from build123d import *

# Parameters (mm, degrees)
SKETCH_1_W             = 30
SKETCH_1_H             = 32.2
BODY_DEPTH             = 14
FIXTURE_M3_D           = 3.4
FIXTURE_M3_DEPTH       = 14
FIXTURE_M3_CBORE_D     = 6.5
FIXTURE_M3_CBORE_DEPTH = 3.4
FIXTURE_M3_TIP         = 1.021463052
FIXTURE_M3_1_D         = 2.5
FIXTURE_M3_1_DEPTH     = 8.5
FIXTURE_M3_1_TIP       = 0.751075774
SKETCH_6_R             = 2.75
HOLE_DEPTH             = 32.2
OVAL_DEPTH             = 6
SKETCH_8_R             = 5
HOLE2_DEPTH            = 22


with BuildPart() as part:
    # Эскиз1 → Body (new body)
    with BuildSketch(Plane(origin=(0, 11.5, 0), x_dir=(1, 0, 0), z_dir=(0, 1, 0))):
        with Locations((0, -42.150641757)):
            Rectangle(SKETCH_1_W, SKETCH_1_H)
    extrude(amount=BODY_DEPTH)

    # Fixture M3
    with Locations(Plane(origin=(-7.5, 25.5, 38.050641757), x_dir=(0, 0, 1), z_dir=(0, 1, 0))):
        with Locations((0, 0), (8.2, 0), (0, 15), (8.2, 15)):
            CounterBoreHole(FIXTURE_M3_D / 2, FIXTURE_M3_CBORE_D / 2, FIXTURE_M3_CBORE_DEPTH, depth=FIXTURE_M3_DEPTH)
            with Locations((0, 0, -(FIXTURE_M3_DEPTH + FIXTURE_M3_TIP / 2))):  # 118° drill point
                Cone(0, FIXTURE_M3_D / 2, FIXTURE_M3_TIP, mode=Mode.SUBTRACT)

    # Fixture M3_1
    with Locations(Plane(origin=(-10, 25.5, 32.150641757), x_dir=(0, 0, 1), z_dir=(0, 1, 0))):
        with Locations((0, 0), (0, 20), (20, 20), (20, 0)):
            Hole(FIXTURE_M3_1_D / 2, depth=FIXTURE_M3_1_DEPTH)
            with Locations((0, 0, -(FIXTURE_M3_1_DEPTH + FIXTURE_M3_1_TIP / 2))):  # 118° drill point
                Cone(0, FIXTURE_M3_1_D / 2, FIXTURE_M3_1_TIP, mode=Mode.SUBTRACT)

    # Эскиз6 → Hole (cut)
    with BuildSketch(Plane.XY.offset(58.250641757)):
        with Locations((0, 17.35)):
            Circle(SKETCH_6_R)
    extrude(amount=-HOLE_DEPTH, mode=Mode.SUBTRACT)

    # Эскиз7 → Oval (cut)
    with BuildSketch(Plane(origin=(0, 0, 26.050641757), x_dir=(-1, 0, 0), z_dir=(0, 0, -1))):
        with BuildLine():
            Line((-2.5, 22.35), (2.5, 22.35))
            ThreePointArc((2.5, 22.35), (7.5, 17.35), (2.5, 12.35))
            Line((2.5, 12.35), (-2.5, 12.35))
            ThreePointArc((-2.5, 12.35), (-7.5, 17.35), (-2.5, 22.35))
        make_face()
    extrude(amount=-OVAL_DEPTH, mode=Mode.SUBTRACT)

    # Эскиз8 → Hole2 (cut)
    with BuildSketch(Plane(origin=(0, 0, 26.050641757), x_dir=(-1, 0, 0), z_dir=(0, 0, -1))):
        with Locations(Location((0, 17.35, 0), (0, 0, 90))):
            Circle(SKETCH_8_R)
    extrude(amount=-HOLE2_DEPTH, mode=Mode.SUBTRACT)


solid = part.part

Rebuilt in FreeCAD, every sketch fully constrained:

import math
import FreeCAD as App
import Part
import Sketcher
from FreeCAD import Vector
Q = App.Units.Quantity


def add_polygon(sketch, points):
    """Adds a closed chain of lines whose ends are joined by coincident constraints."""
    first, n = sketch.GeometryCount, len(points)
    for a, b in zip(points, points[1:] + points[:1]):
        sketch.addGeometry(Part.LineSegment(App.Vector(*a, 0), App.Vector(*b, 0)), False)
    for i in range(n):
        sketch.addConstraint(Sketcher.Constraint("Coincident", first + i, 2, first + (i + 1) % n, 1))

doc = App.newDocument("Part")
body = doc.addObject("PartDesign::Body", "Body")

# Sketch on XZ plane
sketch1 = body.newObject("Sketcher::SketchObject", "Sketch")
sketch1.AttachmentSupport = (doc.getObject("XZ_Plane"), [""])
sketch1.MapMode = "FlatFace"
sketch1.AttachmentOffset = App.Placement(Vector(0, 0, -11.5), App.Rotation())
add_polygon(sketch1, [(-15, 26.050642), (-15, 58.250642), (15, 58.250642), (15, 26.050642)])  # lines 0-3
sketch1.addConstraint([
    Sketcher.Constraint("Vertical", 0),
    Sketcher.Constraint("Horizontal", 1),
    Sketcher.Constraint("Vertical", 2),
    Sketcher.Constraint("Horizontal", 3),
    Sketcher.Constraint("DistanceX", 1, 1, 1, 2, Q("30 mm")),
    Sketcher.Constraint("DistanceY", 0, 1, 0, 2, Q("32.2 mm")),
    Sketcher.Constraint("DistanceX", 0, 2, -1, 1, Q("15 mm")),
    Sketcher.Constraint("DistanceY", -1, 1, 0, 2, Q("58.250642 mm")),
])
pad1 = body.newObject("PartDesign::Pad", "Pad")
pad1.Profile = sketch1
pad1.Length = 14
pad1.Reversed = True

# Sketch on XZ plane
sketch2 = body.newObject("Sketcher::SketchObject", "Sketch001")
sketch2.AttachmentSupport = (doc.getObject("XZ_Plane"), [""])
sketch2.MapMode = "FlatFace"
sketch2.AttachmentOffset = App.Placement(Vector(0, 0, -25.5), App.Rotation())
sketch2.addGeometry([
    Part.Circle(Vector(-7.5, 38.050642, 0), Vector(0, 0, 1), 1.7),
    Part.Circle(Vector(-7.5, 46.250642, 0), Vector(0, 0, 1), 1.7),
    Part.Circle(Vector(7.5, 38.050642, 0), Vector(0, 0, 1), 1.7),
    Part.Circle(Vector(7.5, 46.250642, 0), Vector(0, 0, 1), 1.7),
], False)
sketch2.addConstraint([
    Sketcher.Constraint("Equal", 0, 1),
    Sketcher.Constraint("Equal", 1, 2),
    Sketcher.Constraint("Equal", 2, 3),
    Sketcher.Constraint("Symmetric", 0, 3, 2, 3, -2),
    Sketcher.Constraint("Symmetric", 1, 3, 3, 3, -2),
    Sketcher.Constraint("Vertical", 0, 3, 1, 3),
    Sketcher.Constraint("Diameter", 0, Q("3.4 mm")),
    Sketcher.Constraint("DistanceX", 0, 3, 2, 3, Q("15 mm")),
    Sketcher.Constraint("DistanceY", 0, 3, 1, 3, Q("8.2 mm")),
    Sketcher.Constraint("DistanceY", -1, 1, 0, 3, Q("38.050642 mm")),
])
doc.recompute()
hole = body.newObject("PartDesign::Hole", "Hole")
hole.Profile = sketch2
hole.ThreadType = "None"
hole.Diameter = 3.4
hole.DepthType = "Dimension"
hole.Depth = 14
hole.DrillPoint = "Angled"
hole.DrillPointAngle = 118
hole.HoleCutType = "Counterbore"
hole.HoleCutDiameter = 6.5
hole.HoleCutDepth = 3.4
hole.Reversed = True

# Sketch on XZ plane
sketch3 = body.newObject("Sketcher::SketchObject", "Sketch002")
sketch3.AttachmentSupport = (doc.getObject("XZ_Plane"), [""])
sketch3.MapMode = "FlatFace"
sketch3.AttachmentOffset = App.Placement(Vector(0, 0, -25.5), App.Rotation())
sketch3.addGeometry([
    Part.Circle(Vector(-10, 32.150642, 0), Vector(0, 0, 1), 1.25),
    Part.Circle(Vector(10, 32.150642, 0), Vector(0, 0, 1), 1.25),
    Part.Circle(Vector(10, 52.150642, 0), Vector(0, 0, 1), 1.25),
    Part.Circle(Vector(-10, 52.150642, 0), Vector(0, 0, 1), 1.25),
], False)
sketch3.addConstraint([
    Sketcher.Constraint("Equal", 0, 1),
    Sketcher.Constraint("Equal", 1, 2),
    Sketcher.Constraint("Equal", 2, 3),
    Sketcher.Constraint("Symmetric", 0, 3, 1, 3, -2),
    Sketcher.Constraint("Symmetric", 2, 3, 3, 3, -2),
    Sketcher.Constraint("Vertical", 1, 3, 2, 3),
    Sketcher.Constraint("Diameter", 0, Q("2.5 mm")),
    Sketcher.Constraint("DistanceX", 0, 3, -1, 1, Q("10 mm")),
    Sketcher.Constraint("DistanceY", 1, 3, 2, 3, Q("20 mm")),
    Sketcher.Constraint("DistanceY", -1, 1, 0, 3, Q("32.150642 mm")),
])
doc.recompute()
hole2 = body.newObject("PartDesign::Hole", "Hole001")
hole2.Profile = sketch3
hole2.ThreadType = "None"
hole2.Diameter = 2.5
hole2.DepthType = "Dimension"
hole2.Depth = 8.5
hole2.DrillPoint = "Angled"
hole2.DrillPointAngle = 118
hole2.Reversed = True

# Sketch on XY plane
sketch4 = body.newObject("Sketcher::SketchObject", "Sketch003")
sketch4.AttachmentSupport = (doc.getObject("XY_Plane"), [""])
sketch4.MapMode = "FlatFace"
sketch4.AttachmentOffset = App.Placement(Vector(0, 0, 58.250642), App.Rotation())
sketch4.addGeometry(Part.Circle(Vector(0, 17.35, 0), Vector(0, 0, 1), 2.75), False)
sketch4.addConstraint([
    Sketcher.Constraint("PointOnObject", 0, 3, -2),
    Sketcher.Constraint("Diameter", 0, Q("5.5 mm")),
    Sketcher.Constraint("DistanceY", -1, 1, 0, 3, Q("17.35 mm")),
])
pocket1 = body.newObject("PartDesign::Pocket", "Pocket")
pocket1.Profile = sketch4
pocket1.Length = 32.2

# Sketch on XY plane
sketch5 = body.newObject("Sketcher::SketchObject", "Sketch004")
sketch5.AttachmentSupport = (doc.getObject("XY_Plane"), [""])
sketch5.MapMode = "FlatFace"
sketch5.AttachmentOffset = App.Placement(Vector(0, 0, 26.050642), App.Rotation())
sketch5.addGeometry([
    Part.LineSegment(Vector(-2.5, 22.35, 0), Vector(2.5, 22.35, 0)),
    Part.ArcOfCircle(Part.Circle(Vector(2.5, 17.35, 0), Vector(0, 0, 1), 5), math.radians(-90), math.radians(90)),
    Part.LineSegment(Vector(2.5, 12.35, 0), Vector(-2.5, 12.35, 0)),
    Part.ArcOfCircle(Part.Circle(Vector(-2.5, 17.35, 0), Vector(0, 0, 1), 5), math.radians(90), math.radians(270)),
], False)
sketch5.addConstraint([
    Sketcher.Constraint("Tangent", 0, 2, 1, 2),
    Sketcher.Constraint("Tangent", 1, 1, 2, 1),
    Sketcher.Constraint("Tangent", 2, 2, 3, 2),
    Sketcher.Constraint("Tangent", 3, 1, 0, 1),
    Sketcher.Constraint("Horizontal", 0),
    Sketcher.Constraint("Horizontal", 2),
    Sketcher.Constraint("Radius", 1, Q("5 mm")),
    Sketcher.Constraint("DistanceX", 0, 1, 0, 2, Q("5 mm")),
    Sketcher.Constraint("DistanceX", -1, 1, 1, 3, Q("2.5 mm")),
    Sketcher.Constraint("DistanceY", -1, 1, 1, 3, Q("17.35 mm")),
])
pocket2 = body.newObject("PartDesign::Pocket", "Pocket001")
pocket2.Profile = sketch5
pocket2.Length = 6
pocket2.Reversed = True

# Sketch on XY plane
sketch6 = body.newObject("Sketcher::SketchObject", "Sketch005")
sketch6.AttachmentSupport = (doc.getObject("XY_Plane"), [""])
sketch6.MapMode = "FlatFace"
sketch6.AttachmentOffset = App.Placement(Vector(0, 0, 26.050642), App.Rotation())
sketch6.addGeometry(Part.Circle(Vector(0, 17.35, 0), Vector(0, 0, 1), 5), False)
sketch6.addConstraint([
    Sketcher.Constraint("PointOnObject", 0, 3, -2),
    Sketcher.Constraint("Diameter", 0, Q("10 mm")),
    Sketcher.Constraint("DistanceY", -1, 1, 0, 3, Q("17.35 mm")),
])
pocket3 = body.newObject("PartDesign::Pocket", "Pocket002")
pocket3.Profile = sketch6
pocket3.Length = 22
pocket3.Reversed = True

doc.recompute()
